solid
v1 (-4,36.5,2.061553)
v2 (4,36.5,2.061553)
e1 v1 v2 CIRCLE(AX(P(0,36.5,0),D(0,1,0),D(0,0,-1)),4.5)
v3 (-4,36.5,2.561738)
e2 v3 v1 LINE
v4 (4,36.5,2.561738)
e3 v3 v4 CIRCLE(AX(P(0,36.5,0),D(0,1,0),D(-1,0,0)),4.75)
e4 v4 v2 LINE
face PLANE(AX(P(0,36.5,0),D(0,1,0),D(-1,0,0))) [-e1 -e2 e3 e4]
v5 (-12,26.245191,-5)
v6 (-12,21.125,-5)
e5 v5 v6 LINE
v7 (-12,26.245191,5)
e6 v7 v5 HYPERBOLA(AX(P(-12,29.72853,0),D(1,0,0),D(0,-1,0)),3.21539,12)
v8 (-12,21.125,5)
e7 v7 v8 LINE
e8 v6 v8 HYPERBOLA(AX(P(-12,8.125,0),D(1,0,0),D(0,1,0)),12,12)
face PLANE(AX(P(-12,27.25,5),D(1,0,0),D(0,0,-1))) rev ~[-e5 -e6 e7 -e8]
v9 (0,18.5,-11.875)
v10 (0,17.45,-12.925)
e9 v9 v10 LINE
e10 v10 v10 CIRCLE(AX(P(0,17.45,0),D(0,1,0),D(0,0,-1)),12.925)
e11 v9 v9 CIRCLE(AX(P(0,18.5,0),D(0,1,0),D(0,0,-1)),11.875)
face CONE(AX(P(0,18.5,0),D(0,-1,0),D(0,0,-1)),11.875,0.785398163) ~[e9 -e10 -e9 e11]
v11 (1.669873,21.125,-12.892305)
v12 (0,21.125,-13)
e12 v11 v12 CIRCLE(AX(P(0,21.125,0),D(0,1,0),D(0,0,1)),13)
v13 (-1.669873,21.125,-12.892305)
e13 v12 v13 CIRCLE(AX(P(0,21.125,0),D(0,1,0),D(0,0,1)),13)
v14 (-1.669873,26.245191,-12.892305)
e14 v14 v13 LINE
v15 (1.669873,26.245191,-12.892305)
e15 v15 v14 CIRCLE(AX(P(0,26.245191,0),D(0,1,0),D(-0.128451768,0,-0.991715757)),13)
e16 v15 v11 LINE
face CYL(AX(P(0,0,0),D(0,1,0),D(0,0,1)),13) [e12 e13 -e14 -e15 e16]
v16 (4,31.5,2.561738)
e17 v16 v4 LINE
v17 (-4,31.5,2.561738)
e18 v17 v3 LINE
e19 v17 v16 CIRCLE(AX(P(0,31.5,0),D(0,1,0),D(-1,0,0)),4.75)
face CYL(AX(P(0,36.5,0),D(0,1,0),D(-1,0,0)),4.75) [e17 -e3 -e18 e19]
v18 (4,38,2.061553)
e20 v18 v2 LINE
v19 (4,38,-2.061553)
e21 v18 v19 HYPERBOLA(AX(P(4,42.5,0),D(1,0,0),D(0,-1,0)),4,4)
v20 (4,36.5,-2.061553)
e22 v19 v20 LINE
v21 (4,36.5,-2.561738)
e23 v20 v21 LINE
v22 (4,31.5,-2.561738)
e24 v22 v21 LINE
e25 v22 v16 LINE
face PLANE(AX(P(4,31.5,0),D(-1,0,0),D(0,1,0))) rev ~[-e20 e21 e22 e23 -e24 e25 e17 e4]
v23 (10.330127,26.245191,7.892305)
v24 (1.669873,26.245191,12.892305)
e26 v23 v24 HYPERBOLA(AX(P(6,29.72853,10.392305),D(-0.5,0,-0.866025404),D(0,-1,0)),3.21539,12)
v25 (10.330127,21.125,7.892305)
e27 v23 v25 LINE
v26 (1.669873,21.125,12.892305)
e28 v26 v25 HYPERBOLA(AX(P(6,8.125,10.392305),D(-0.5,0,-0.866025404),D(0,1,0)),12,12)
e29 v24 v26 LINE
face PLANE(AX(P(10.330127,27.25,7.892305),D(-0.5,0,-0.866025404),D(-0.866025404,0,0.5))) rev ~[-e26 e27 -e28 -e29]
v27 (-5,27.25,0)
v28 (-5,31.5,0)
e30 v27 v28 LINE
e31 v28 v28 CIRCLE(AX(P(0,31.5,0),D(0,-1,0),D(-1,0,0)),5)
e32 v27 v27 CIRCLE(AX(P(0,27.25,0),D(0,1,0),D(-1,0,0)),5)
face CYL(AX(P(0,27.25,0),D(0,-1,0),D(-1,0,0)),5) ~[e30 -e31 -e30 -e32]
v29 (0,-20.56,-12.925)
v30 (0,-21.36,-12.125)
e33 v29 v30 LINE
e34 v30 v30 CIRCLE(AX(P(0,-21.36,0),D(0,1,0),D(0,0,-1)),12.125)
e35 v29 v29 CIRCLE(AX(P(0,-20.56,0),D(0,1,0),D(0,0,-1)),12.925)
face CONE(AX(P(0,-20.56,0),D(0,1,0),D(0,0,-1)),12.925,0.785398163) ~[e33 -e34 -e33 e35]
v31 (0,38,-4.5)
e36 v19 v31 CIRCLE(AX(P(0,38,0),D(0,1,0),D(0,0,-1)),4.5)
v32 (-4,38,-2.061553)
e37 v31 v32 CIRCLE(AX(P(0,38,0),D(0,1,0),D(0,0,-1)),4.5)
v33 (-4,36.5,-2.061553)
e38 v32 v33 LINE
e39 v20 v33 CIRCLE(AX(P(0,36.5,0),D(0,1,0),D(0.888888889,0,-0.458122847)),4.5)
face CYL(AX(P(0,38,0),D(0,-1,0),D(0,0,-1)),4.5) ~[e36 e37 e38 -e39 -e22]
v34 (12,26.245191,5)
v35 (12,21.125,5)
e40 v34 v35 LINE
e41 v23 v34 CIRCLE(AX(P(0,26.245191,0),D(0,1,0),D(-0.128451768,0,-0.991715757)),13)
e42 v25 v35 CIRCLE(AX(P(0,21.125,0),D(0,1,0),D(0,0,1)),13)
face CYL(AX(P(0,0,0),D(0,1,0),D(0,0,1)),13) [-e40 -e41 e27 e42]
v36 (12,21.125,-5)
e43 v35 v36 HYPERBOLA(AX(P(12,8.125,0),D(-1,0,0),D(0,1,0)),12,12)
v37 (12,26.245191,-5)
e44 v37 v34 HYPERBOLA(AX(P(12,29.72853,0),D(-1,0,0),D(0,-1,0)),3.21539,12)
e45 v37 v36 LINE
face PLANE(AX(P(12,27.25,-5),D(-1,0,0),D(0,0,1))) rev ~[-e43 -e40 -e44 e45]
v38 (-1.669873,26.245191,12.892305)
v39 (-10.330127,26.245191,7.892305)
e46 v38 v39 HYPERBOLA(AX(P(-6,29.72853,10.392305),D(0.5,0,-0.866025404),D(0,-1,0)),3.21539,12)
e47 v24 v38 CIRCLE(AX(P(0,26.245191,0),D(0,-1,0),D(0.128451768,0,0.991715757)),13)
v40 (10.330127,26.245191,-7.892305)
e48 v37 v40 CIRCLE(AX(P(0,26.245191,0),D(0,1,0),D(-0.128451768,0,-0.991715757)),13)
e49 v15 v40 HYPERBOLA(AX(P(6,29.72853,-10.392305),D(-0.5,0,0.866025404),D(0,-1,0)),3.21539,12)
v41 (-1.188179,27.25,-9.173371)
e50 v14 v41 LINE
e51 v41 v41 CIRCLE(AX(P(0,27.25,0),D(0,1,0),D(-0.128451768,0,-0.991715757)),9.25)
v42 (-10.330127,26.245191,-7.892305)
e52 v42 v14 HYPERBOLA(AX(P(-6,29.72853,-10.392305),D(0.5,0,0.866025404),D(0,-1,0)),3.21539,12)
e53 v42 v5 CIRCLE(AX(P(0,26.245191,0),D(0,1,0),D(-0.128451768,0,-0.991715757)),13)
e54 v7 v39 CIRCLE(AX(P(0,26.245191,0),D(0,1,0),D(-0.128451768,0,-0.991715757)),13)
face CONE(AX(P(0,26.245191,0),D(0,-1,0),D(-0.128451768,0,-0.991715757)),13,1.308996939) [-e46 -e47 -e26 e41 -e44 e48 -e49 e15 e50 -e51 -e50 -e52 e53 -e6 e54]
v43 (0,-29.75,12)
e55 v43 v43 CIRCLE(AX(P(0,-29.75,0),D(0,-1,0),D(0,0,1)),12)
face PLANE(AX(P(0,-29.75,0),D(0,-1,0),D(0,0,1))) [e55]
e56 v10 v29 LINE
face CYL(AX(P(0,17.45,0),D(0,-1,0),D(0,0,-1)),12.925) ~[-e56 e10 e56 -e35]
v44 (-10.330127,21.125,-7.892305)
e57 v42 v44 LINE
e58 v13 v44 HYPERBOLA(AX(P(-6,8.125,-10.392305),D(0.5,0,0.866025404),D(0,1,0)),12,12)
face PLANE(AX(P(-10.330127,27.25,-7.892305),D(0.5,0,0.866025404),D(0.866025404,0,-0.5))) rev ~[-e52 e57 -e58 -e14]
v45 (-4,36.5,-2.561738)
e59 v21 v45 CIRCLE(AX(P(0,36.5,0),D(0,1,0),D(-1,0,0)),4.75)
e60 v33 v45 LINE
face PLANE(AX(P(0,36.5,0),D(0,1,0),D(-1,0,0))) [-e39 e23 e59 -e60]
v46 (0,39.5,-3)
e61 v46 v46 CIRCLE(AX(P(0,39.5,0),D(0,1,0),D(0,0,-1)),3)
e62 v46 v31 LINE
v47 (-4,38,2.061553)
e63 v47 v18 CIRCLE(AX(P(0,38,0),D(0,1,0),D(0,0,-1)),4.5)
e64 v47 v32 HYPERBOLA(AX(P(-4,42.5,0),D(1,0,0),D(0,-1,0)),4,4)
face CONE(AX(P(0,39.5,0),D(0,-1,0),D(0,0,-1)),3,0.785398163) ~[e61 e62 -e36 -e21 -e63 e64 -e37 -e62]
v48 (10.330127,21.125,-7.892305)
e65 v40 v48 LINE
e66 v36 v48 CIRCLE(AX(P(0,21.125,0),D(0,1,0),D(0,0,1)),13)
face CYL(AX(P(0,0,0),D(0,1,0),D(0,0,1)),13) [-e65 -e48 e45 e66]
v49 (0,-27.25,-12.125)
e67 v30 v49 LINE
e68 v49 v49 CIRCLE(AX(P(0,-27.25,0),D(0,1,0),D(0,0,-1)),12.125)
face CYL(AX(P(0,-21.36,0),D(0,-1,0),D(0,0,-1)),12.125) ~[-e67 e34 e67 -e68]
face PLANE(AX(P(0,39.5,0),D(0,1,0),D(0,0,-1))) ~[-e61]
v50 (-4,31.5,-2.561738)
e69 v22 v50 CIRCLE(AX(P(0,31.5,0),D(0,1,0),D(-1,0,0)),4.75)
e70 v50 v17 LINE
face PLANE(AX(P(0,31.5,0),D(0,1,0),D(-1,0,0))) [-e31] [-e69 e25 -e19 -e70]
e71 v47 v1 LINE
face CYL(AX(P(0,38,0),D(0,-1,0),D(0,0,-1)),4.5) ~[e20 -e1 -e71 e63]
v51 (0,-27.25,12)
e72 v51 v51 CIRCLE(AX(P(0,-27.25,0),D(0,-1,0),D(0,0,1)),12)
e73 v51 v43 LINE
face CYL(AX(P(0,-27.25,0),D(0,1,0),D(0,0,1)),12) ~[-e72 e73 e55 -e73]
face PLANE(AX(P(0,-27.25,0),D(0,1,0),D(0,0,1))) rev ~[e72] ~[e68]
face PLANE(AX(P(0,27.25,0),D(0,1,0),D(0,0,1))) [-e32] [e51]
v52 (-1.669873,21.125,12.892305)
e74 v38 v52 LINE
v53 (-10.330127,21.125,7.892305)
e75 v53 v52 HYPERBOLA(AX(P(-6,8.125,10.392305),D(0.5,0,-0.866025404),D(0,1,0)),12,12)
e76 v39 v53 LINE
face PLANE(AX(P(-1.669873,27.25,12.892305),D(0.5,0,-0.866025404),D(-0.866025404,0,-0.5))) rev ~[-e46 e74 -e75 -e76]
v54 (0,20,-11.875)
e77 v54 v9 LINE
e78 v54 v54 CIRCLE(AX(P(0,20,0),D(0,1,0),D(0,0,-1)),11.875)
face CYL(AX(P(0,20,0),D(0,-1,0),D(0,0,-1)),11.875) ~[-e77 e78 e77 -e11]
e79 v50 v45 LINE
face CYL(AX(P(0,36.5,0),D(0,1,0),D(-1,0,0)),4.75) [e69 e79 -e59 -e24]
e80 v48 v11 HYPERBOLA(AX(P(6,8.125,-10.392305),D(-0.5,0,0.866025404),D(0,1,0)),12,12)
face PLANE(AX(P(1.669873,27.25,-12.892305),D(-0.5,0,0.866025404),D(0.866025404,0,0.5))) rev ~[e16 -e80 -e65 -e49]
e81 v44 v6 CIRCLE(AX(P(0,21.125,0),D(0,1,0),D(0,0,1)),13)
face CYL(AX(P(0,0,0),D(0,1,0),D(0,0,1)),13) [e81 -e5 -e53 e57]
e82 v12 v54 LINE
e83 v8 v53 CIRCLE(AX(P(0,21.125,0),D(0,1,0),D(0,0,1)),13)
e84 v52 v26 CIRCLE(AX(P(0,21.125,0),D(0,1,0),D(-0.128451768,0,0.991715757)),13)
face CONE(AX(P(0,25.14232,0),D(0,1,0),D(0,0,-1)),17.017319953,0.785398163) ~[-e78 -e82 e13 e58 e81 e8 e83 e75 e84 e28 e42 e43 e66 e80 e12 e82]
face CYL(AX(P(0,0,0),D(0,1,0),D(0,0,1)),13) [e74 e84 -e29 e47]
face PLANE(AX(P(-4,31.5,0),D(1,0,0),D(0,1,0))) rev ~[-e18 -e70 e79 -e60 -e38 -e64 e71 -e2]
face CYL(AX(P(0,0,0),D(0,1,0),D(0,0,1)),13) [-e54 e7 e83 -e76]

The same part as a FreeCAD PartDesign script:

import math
import FreeCAD as App
import Part
import Sketcher
from FreeCAD import Vector
Q = App.Units.Quantity


def add_polygon(sketch, points):
    """Adds a closed chain of lines whose ends are joined by coincident constraints."""
    first, n = sketch.GeometryCount, len(points)
    for a, b in zip(points, points[1:] + points[:1]):
        sketch.addGeometry(Part.LineSegment(App.Vector(*a, 0), App.Vector(*b, 0)), False)
    for i in range(n):
        sketch.addConstraint(Sketcher.Constraint("Coincident", first + i, 2, first + (i + 1) % n, 1))

doc = App.newDocument("Part")
body = doc.addObject("PartDesign::Body", "Body")

# Sketch on XZ plane
sketch1 = body.newObject("Sketcher::SketchObject", "Sketch")
sketch1.AttachmentSupport = (doc.getObject("XZ_Plane"), [""])
sketch1.MapMode = "FlatFace"
sketch1.addGeometry(Part.Circle(Vector(0, 0, 0), Vector(0, 0, 1), 13), False)
sketch1.addConstraint([
    Sketcher.Constraint("Coincident", 0, 3, -1, 1),
    Sketcher.Constraint("Diameter", 0, Q("26 mm")),
])
pad1 = body.newObject("PartDesign::Pad", "Pad")
pad1.Profile = sketch1
pad1.Length = 54.5
pad1.Midplane = True

# Sketch on XZ plane
sketch2 = body.newObject("Sketcher::SketchObject", "Sketch001")
sketch2.AttachmentSupport = (doc.getObject("XZ_Plane"), [""])
sketch2.MapMode = "FlatFace"
sketch2.AttachmentOffset = App.Placement(Vector(0, 0, -27.25), App.Rotation())
sketch2.addGeometry([
    Part.ArcOfCircle(Part.Circle(Vector(0, 0, 0), Vector(0, 0, 1), 13), math.radians(-83), math.radians(-37)),  # 0
    Part.LineSegment(Vector(2, -13, 0), Vector(10, -8, 0)),  # 1
    Part.LineSegment(Vector(-10, -8, 0), Vector(-2, -13, 0)),  # 2
    Part.ArcOfCircle(Part.Circle(Vector(0, 0, 0), Vector(0, 0, 1), 13), math.radians(-143), math.radians(-97)),  # 3
    Part.LineSegment(Vector(12, -5, 0), Vector(12, 5, 0)),  # 4
    Part.ArcOfCircle(Part.Circle(Vector(0, 0, 0), Vector(0, 0, 1), 13), math.radians(-23), math.radians(23)),  # 5
    Part.LineSegment(Vector(-12, 5, 0), Vector(-12, -5, 0)),  # 6
    Part.ArcOfCircle(Part.Circle(Vector(0, 0, 0), Vector(0, 0, 1), 13), math.radians(157), math.radians(203)),  # 7
    Part.LineSegment(Vector(10, 8, 0), Vector(2, 13, 0)),  # 8
    Part.ArcOfCircle(Part.Circle(Vector(0, 0, 0), Vector(0, 0, 1), 13), math.radians(37), math.radians(83)),  # 9
    Part.LineSegment(Vector(-2, 13, 0), Vector(-10, 8, 0)),  # 10
    Part.ArcOfCircle(Part.Circle(Vector(0, 0, 0), Vector(0, 0, 1), 13), math.radians(97), math.radians(143)),  # 11
], False)
sketch2.addConstraint([
    Sketcher.Constraint("Coincident", 0, 1, 1, 1),
    Sketcher.Constraint("Coincident", 1, 2, 0, 2),
    Sketcher.Constraint("Coincident", 2, 1, 3, 1),
    Sketcher.Constraint("Coincident", 3, 2, 2, 2),
    Sketcher.Constraint("Coincident", 4, 1, 5, 1),
    Sketcher.Constraint("Coincident", 5, 2, 4, 2),
    Sketcher.Constraint("Coincident", 6, 1, 7, 1),
    Sketcher.Constraint("Coincident", 7, 2, 6, 2),
    Sketcher.Constraint("Coincident", 8, 1, 9, 1),
    Sketcher.Constraint("Coincident", 9, 2, 8, 2),
    Sketcher.Constraint("Coincident", 10, 1, 11, 1),
    Sketcher.Constraint("Coincident", 11, 2, 10, 2),
    Sketcher.Constraint("Vertical", 4),
    Sketcher.Constraint("Vertical", 6),
    Sketcher.Constraint("Coincident", 0, 3, -1, 1),
    Sketcher.Constraint("Coincident", 3, 3, -1, 1),
    Sketcher.Constraint("Coincident", 5, 3, -1, 1),
    Sketcher.Constraint("Coincident", 7, 3, -1, 1),
    Sketcher.Constraint("Coincident", 9, 3, -1, 1),
    Sketcher.Constraint("Coincident", 11, 3, -1, 1),
    Sketcher.Constraint("Equal", 0, 3),
    Sketcher.Constraint("Equal", 3, 5),
    Sketcher.Constraint("Equal", 5, 7),
    Sketcher.Constraint("Equal", 7, 9),
    Sketcher.Constraint("Equal", 9, 11),
    Sketcher.Constraint("Parallel", 2, 8),
    Sketcher.Constraint("Parallel", 1, 10),
    Sketcher.Constraint("Horizontal", 1, 2, 2, 1),
    Sketcher.Constraint("Horizontal", 0, 1, 3, 2),
    Sketcher.Constraint("Horizontal", 5, 2, 6, 1),
    Sketcher.Constraint("Horizontal", 9, 2, 10, 1),
    Sketcher.Constraint("Vertical", 1, 2, 8, 1),
    Sketcher.Constraint("Radius", 0, Q("13 mm")),
    Sketcher.Constraint("DistanceY", 4, 1, 4, 2, Q("10 mm")),
    Sketcher.Constraint("Angle", 1, Q("30 deg")),
    Sketcher.Constraint("Distance", 1, Q("10 mm")),
])
pocket1 = body.newObject("PartDesign::Pocket", "Pocket")
pocket1.Profile = sketch2
pocket1.Length = 8.5
pocket1.Reversed = True

# Sketch on XY plane
sketch3 = body.newObject("Sketcher::SketchObject", "Sketch002")
sketch3.AttachmentSupport = (doc.getObject("XY_Plane"), [""])
sketch3.MapMode = "FlatFace"
add_polygon(sketch3, [(13, 27.2), (9.2, 27.2), (13, 26.2)])  # lines 0-2
sketch3.addConstraint([
    Sketcher.Constraint("Horizontal", 0),
    Sketcher.Constraint("Vertical", 2),
    Sketcher.Constraint("Angle", 1, Q("-15 deg")),
    Sketcher.Constraint("DistanceX", -1, 1, 1, 2, Q("13 mm")),
    Sketcher.Constraint("DistanceX", 0, 2, 0, 1, Q("3.75 mm")),
    Sketcher.Constraint("DistanceY", -1, 1, 0, 2, Q("27.25 mm")),
])
groove = body.newObject("PartDesign::Groove", "Groove")
groove.Profile = sketch3
groove.ReferenceAxis = (sketch3, ["V_Axis"])
groove.Angle = 360

# Sketch on XY plane
sketch4 = body.newObject("Sketcher::SketchObject", "Sketch003")
sketch4.AttachmentSupport = (doc.getObject("XY_Plane"), [""])
sketch4.MapMode = "FlatFace"
add_polygon(sketch4, [(17, -27.2), (17, 25.1), (11.9, 20), (11.9, 18.5), (12.9, 17.4), (12.9, -20.6), (12.1, -21.4), (12.1, -27.2)])  # lines 0-7
sketch4.addConstraint([
    Sketcher.Constraint("Vertical", 0),
    Sketcher.Constraint("Vertical", 2),
    Sketcher.Constraint("Vertical", 4),
    Sketcher.Constraint("Vertical", 6),
    Sketcher.Constraint("Horizontal", 7),
    Sketcher.Constraint("Perpendicular", 1, 3),
    Sketcher.Constraint("Perpendicular", 3, 5),
    Sketcher.Constraint("Angle", 1, Q("-135 deg")),
    Sketcher.Constraint("DistanceY", 2, 2, 2, 1, Q("1.5 mm")),
    Sketcher.Constraint("DistanceY", -1, 1, 1, 2, Q("20 mm")),
    Sketcher.Constraint("DistanceY", 4, 2, 4, 1, Q("38.01 mm")),
    Sketcher.Constraint("DistanceY", 6, 2, 6, 1, Q("5.89 mm")),
    Sketcher.Constraint("DistanceX", 5, 2, 4, 2, Q("0.8 mm")),
    Sketcher.Constraint("DistanceY", -1, 1, 3, 2, Q("17.45 mm")),
    Sketcher.Constraint("DistanceX", -1, 1, 1, 2, Q("11.875 mm")),
    Sketcher.Constraint("DistanceX", 7, 1, 7, 2, Q("4.89232 mm")),
])
groove2 = body.newObject("PartDesign::Groove", "Groove001")
groove2.Profile = sketch4
groove2.ReferenceAxis = (sketch4, ["V_Axis"])
groove2.Angle = 360

# Sketch on XZ plane
sketch5 = body.newObject("Sketcher::SketchObject", "Sketch004")
sketch5.AttachmentSupport = (doc.getObject("XZ_Plane"), [""])
sketch5.MapMode = "FlatFace"
sketch5.AttachmentOffset = App.Placement(Vector(0, 0, 27.25), App.Rotation())
sketch5.addGeometry(Part.Circle(Vector(0, 0, 0), Vector(0, 0, 1), 12), False)
sketch5.addConstraint([
    Sketcher.Constraint("Coincident", 0, 3, -1, 1),
    Sketcher.Constraint("Diameter", 0, Q("24 mm")),
])
pad2 = body.newObject("PartDesign::Pad", "Pad001")
pad2.Profile = sketch5
pad2.Length = 2.5
body2 = doc.addObject("PartDesign::Body", "Body001")

# Sketch on XY plane
sketch6 = body2.newObject("Sketcher::SketchObject", "Sketch005")
sketch6.AttachmentSupport = (doc.getObject("XY_Plane001"), [""])
sketch6.MapMode = "FlatFace"
add_polygon(sketch6, [(3, 39.5), (0, 39.5), (0, 36.5), (4.5, 36.5), (4.5, 38)])  # lines 0-4
sketch6.addConstraint([
    Sketcher.Constraint("Horizontal", 0),
    Sketcher.Constraint("Vertical", 1),
    Sketcher.Constraint("Horizontal", 2),
    Sketcher.Constraint("Vertical", 3),
    Sketcher.Constraint("PointOnObject", 0, 2, -2),
    Sketcher.Constraint("Equal", 0, 1),
    Sketcher.Constraint("DistanceX", 0, 2, 0, 1, Q("3 mm")),
    Sketcher.Constraint("Angle", 4, Q("135 deg")),
    Sketcher.Constraint("DistanceX", 2, 1, 2, 2, Q("4.5 mm")),
    Sketcher.Constraint("DistanceY", -1, 1, 3, 2, Q("38 mm")),
])
revolution = body2.newObject("PartDesign::Revolution", "Revolution")
revolution.Profile = sketch6
revolution.ReferenceAxis = (sketch6, ["V_Axis"])
revolution.Angle = 360

# Sketch on XY plane
sketch7 = body2.newObject("Sketcher::SketchObject", "Sketch006")
sketch7.AttachmentSupport = (doc.getObject("XY_Plane001"), [""])
sketch7.MapMode = "FlatFace"
add_polygon(sketch7, [(4, 39.7), (4, 36.5), (4.7, 36.5), (4.7, 39.7)])  # lines 0-3
add_polygon(sketch7, [(-4, 36.5), (-4, 35.9), (4, 35.9), (4, 36.5)])  # lines 4-7
add_polygon(sketch7, [(-4.7, 39.7), (-4.7, 36.5), (-4, 36.5), (-4, 39.7)])  # lines 8-11
sketch7.addConstraint([
    Sketcher.Constraint("Vertical", 0),
    Sketcher.Constraint("Horizontal", 1),
    Sketcher.Constraint("Vertical", 2),
    Sketcher.Constraint("Horizontal", 3),
    Sketcher.Constraint("Vertical", 4),
    Sketcher.Constraint("Horizontal", 5),
    Sketcher.Constraint("Vertical", 6),
    Sketcher.Constraint("Horizontal", 7),
    Sketcher.Constraint("Vertical", 8),
    Sketcher.Constraint("Horizontal", 9),
    Sketcher.Constraint("Vertical", 10),
    Sketcher.Constraint("Horizontal", 11),
    Sketcher.Constraint("Coincident", 6, 2, 0, 2),
    Sketcher.Constraint("Coincident", 9, 2, 7, 2),
    Sketcher.Constraint("Symmetric", 3, 2, 10, 2, -2),
    Sketcher.Constraint("DistanceX", 5, 1, 5, 2, Q("8 mm")),
    Sketcher.Constraint("DistanceY", -1, 1, 0, 2, Q("36.5 mm")),
    Sketcher.Constraint("DistanceX", 1, 1, 1, 2, Q("0.724432 mm")),
    Sketcher.Constraint("DistanceX", 9, 1, 9, 2, Q("0.732917 mm")),
    Sketcher.Constraint("DistanceY", 0, 2, 0, 1, Q("3.174333 mm")),
    Sketcher.Constraint("DistanceY", 4, 2, 4, 1, Q("0.600364 mm")),
])
pocket2 = body2.newObject("PartDesign::Pocket", "Pocket001")
pocket2.Profile = sketch7
pocket2.Length = 26.95
pocket2.Midplane = True
body.AllowCompound = True
doc.recompute()

boolean = body.newObject("PartDesign::Boolean", "Boolean")
boolean.Type = "Fuse"
boolean.addObjects([body2])

# Sketch on XZ plane
sketch8 = body.newObject("Sketcher::SketchObject", "Sketch007")
sketch8.AttachmentSupport = (doc.getObject("XZ_Plane"), [""])
sketch8.MapMode = "FlatFace"
sketch8.AttachmentOffset = App.Placement(Vector(0, 0, -27.25), App.Rotation())
sketch8.addGeometry(Part.Circle(Vector(0, 0, 0), Vector(0, 0, 1), 5), False)
sketch8.addConstraint([
    Sketcher.Constraint("Coincident", 0, 3, -1, 1),
    Sketcher.Constraint("Diameter", 0, Q("10 mm")),
])
pad3 = body.newObject("PartDesign::Pad", "Pad002")
pad3.Profile = sketch8
pad3.Length = 9.25
pad3.Reversed = True

# Sketch on XZ plane
sketch9 = body.newObject("Sketcher::SketchObject", "Sketch008")
sketch9.AttachmentSupport = (doc.getObject("XZ_Plane"), [""])
sketch9.MapMode = "FlatFace"
sketch9.AttachmentOffset = App.Placement(Vector(0, 0, -36.5), App.Rotation())
sketch9.addGeometry([
    Part.Circle(Vector(0, 0, 0), Vector(0, 0, 1), 5),
    Part.Circle(Vector(0, 0, 0), Vector(0, 0, 1), 4.8),
], False)
sketch9.addConstraint([
    Sketcher.Constraint("Coincident", 0, 3, -1, 1),
    Sketcher.Constraint("Coincident", 1, 3, -1, 1),
    Sketcher.Constraint("Diameter", 0, Q("10 mm")),
    Sketcher.Constraint("Diameter", 1, Q("9.5 mm")),
])
pocket3 = body.newObject("PartDesign::Pocket", "Pocket002")
pocket3.Profile = sketch9
pocket3.Length = 5
pocket3.Reversed = True

# Sketch on XY plane
sketch10 = body.newObject("Sketcher::SketchObject", "Sketch009")
sketch10.AttachmentSupport = (doc.getObject("XY_Plane"), [""])
sketch10.MapMode = "FlatFace"
add_polygon(sketch10, [(4, 36.5), (4, 31.5), (5, 31.5), (5, 36.5)])  # lines 0-3
add_polygon(sketch10, [(-5, 36.5), (-5, 31.5), (-4, 31.5), (-4, 36.5)])  # lines 4-7
sketch10.addConstraint([
    Sketcher.Constraint("Vertical", 0),
    Sketcher.Constraint("Horizontal", 1),
    Sketcher.Constraint("Vertical", 2),
    Sketcher.Constraint("Horizontal", 3),
    Sketcher.Constraint("Vertical", 4),
    Sketcher.Constraint("Horizontal", 5),
    Sketcher.Constraint("Vertical", 6),
    Sketcher.Constraint("Horizontal", 7),
    Sketcher.Constraint("Symmetric", 1, 2, 4, 2, -2),
    Sketcher.Constraint("Symmetric", 3, 2, 6, 2, -2),
    Sketcher.Constraint("DistanceX", 1, 1, 1, 2, Q("1 mm")),
    Sketcher.Constraint("DistanceY", 0, 2, 0, 1, Q("5 mm")),
    Sketcher.Constraint("DistanceX", -1, 1, 0, 2, Q("4 mm")),
    Sketcher.Constraint("DistanceY", -1, 1, 0, 2, Q("31.5 mm")),
])
pocket4 = body.newObject("PartDesign::Pocket", "Pocket003")
pocket4.Profile = sketch10
pocket4.Length = 26.95
pocket4.Midplane = True

doc.recompute()
